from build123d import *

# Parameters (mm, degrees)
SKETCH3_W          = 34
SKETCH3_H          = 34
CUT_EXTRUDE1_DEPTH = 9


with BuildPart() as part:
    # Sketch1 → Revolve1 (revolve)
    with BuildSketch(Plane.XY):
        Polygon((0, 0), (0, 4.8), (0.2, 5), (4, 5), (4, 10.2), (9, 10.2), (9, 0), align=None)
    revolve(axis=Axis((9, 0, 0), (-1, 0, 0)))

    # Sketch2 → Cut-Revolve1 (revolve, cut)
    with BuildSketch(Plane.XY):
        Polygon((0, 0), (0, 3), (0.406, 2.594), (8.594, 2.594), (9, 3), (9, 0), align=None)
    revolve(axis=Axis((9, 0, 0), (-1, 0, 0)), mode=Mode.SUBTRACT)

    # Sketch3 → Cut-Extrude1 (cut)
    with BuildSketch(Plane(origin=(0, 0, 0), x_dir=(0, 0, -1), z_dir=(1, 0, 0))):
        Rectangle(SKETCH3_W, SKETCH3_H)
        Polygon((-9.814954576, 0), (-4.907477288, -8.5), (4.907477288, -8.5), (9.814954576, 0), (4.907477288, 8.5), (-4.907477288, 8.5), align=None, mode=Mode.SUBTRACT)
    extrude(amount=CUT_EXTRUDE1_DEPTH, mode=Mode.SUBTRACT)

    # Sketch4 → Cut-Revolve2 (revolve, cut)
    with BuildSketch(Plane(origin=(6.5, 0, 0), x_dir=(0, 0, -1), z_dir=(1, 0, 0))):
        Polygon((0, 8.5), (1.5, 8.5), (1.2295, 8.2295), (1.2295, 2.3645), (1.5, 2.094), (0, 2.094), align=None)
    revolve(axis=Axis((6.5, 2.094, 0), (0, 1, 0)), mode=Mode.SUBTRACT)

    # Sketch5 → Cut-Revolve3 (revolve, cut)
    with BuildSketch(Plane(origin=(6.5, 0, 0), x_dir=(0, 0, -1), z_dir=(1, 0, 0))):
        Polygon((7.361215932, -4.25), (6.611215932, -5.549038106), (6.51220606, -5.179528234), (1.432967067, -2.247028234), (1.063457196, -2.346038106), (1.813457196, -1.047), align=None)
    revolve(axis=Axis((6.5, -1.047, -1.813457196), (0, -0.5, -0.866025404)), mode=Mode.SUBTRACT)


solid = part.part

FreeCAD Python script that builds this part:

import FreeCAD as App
import Part
import Sketcher
from FreeCAD import Vector
Q = App.Units.Quantity

doc = App.newDocument("Part")
body = doc.addObject("PartDesign::Body", "Body")

# Sketch on XY plane
sketch1 = body.newObject("Sketcher::SketchObject", "Sketch")
sketch1.AttachmentSupport = (doc.getObject("XY_Plane"), [""])
sketch1.MapMode = "FlatFace"
sketch1.addGeometry([
    Part.LineSegment(Vector(0, 4.8, 0), Vector(0, 0, 0)),  # 0
    Part.LineSegment(Vector(0, 0, 0), Vector(9, 0, 0)),  # 1
    Part.LineSegment(Vector(9, 0, 0), Vector(9, 10.2, 0)),  # 2
    Part.LineSegment(Vector(9, 10.2, 0), Vector(4, 10.2, 0)),  # 3
    Part.LineSegment(Vector(4, 10.2, 0), Vector(4, 5, 0)),  # 4
    Part.LineSegment(Vector(4, 5, 0), Vector(0.2, 5, 0)),  # 5
    Part.LineSegment(Vector(0.2, 5, 0), Vector(0, 4.8, 0)),  # 6
], False)
sketch1.addConstraint([
    Sketcher.Constraint("Coincident", 0, 2, 1, 1),
    Sketcher.Constraint("Coincident", 1, 2, 2, 1),
    Sketcher.Constraint("Coincident", 2, 2, 3, 1),
    Sketcher.Constraint("Coincident", 3, 2, 4, 1),
    Sketcher.Constraint("Coincident", 4, 2, 5, 1),
    Sketcher.Constraint("Coincident", 5, 2, 6, 1),
    Sketcher.Constraint("Coincident", 6, 2, 0, 1),
    Sketcher.Constraint("Vertical", 0),
    Sketcher.Constraint("Horizontal", 1),
    Sketcher.Constraint("Vertical", 2),
    Sketcher.Constraint("Horizontal", 3),
    Sketcher.Constraint("Vertical", 4),
    Sketcher.Constraint("Horizontal", 5),
    Sketcher.Constraint("Coincident", 0, 2, -1, 1),
    Sketcher.Constraint("DistanceX", 1, 1, 1, 2, Q("9 mm")),
    Sketcher.Constraint("DistanceX", 3, 2, 3, 1, Q("5 mm")),
    Sketcher.Constraint("Angle", 6, Q("-135 deg")),
    Sketcher.Constraint("DistanceX", 5, 2, 5, 1, Q("3.8 mm")),
    Sketcher.Constraint("DistanceY", 0, 2, 0, 1, Q("4.8 mm")),
    Sketcher.Constraint("DistanceY", 2, 1, 2, 2, Q("10.2 mm")),
])
revolution = body.newObject("PartDesign::Revolution", "Revolution")
revolution.Profile = sketch1
revolution.ReferenceAxis = (sketch1, ["H_Axis"])
revolution.Angle = 360

# Sketch on XY plane
sketch2 = body.newObject("Sketcher::SketchObject", "Sketch001")
sketch2.AttachmentSupport = (doc.getObject("XY_Plane"), [""])
sketch2.MapMode = "FlatFace"
sketch2.addGeometry([
    Part.LineSegment(Vector(0, 3, 0), Vector(0, 0, 0)),  # 0
    Part.LineSegment(Vector(0, 0, 0), Vector(9, 0, 0)),  # 1
    Part.LineSegment(Vector(9, 0, 0), Vector(9, 3, 0)),  # 2
    Part.LineSegment(Vector(9, 3, 0), Vector(8.6, 2.6, 0)),  # 3
    Part.LineSegment(Vector(8.6, 2.6, 0), Vector(0.4, 2.6, 0)),  # 4
    Part.LineSegment(Vector(0.4, 2.6, 0), Vector(0, 3, 0)),  # 5
], False)
sketch2.addConstraint([
    Sketcher.Constraint("Coincident", 0, 2, 1, 1),
    Sketcher.Constraint("Coincident", 1, 2, 2, 1),
    Sketcher.Constraint("Coincident", 2, 2, 3, 1),
    Sketcher.Constraint("Coincident", 3, 2, 4, 1),
    Sketcher.Constraint("Coincident", 4, 2, 5, 1),
    Sketcher.Constraint("Coincident", 5, 2, 0, 1),
    Sketcher.Constraint("Vertical", 0),
    Sketcher.Constraint("Horizontal", 1),
    Sketcher.Constraint("Vertical", 2),
    Sketcher.Constraint("Horizontal", 4),
    Sketcher.Constraint("Coincident", 0, 2, -1, 1),
    Sketcher.Constraint("Perpendicular", 3, 5),
    Sketcher.Constraint("Horizontal", 2, 2, 5, 2),
    Sketcher.Constraint("Equal", 3, 5),
    Sketcher.Constraint("DistanceX", 1, 1, 1, 2, Q("9 mm")),
    Sketcher.Constraint("DistanceY", 0, 2, 0, 1, Q("3 mm")),
    Sketcher.Constraint("DistanceX", 4, 2, 4, 1, Q("8.188 mm")),
])
groove = body.newObject("PartDesign::Groove", "Groove")
groove.Profile = sketch2
groove.ReferenceAxis = (sketch2, ["H_Axis"])
groove.Angle = 360

# Sketch on YZ plane
sketch3 = body.newObject("Sketcher::SketchObject", "Sketch002")
sketch3.AttachmentSupport = (doc.getObject("YZ_Plane"), [""])
sketch3.MapMode = "FlatFace"
sketch3.addGeometry([
    Part.LineSegment(Vector(17, 17, 0), Vector(-17, 17, 0)),  # 0
    Part.LineSegment(Vector(-17, 17, 0), Vector(-17, -17, 0)),  # 1
    Part.LineSegment(Vector(-17, -17, 0), Vector(17, -17, 0)),  # 2
    Part.LineSegment(Vector(17, -17, 0), Vector(17, 17, 0)),  # 3
    Part.LineSegment(Vector(-8, 5, 0), Vector(0, 10, 0)),  # 4
    Part.LineSegment(Vector(0, 10, 0), Vector(8, 5, 0)),  # 5
    Part.LineSegment(Vector(8, 5, 0), Vector(8, -5, 0)),  # 6
    Part.LineSegment(Vector(8, -5, 0), Vector(0, -10, 0)),  # 7
    Part.LineSegment(Vector(0, -10, 0), Vector(-8, -5, 0)),  # 8
    Part.LineSegment(Vector(-8, -5, 0), Vector(-8, 5, 0)),  # 9
], False)
sketch3.addConstraint([
    Sketcher.Constraint("Coincident", 0, 2, 1, 1),
    Sketcher.Constraint("Coincident", 1, 2, 2, 1),
    Sketcher.Constraint("Coincident", 2, 2, 3, 1),
    Sketcher.Constraint("Coincident", 3, 2, 0, 1),
    Sketcher.Constraint("Coincident", 4, 2, 5, 1),
    Sketcher.Constraint("Coincident", 5, 2, 6, 1),
    Sketcher.Constraint("Coincident", 6, 2, 7, 1),
    Sketcher.Constraint("Coincident", 7, 2, 8, 1),
    Sketcher.Constraint("Coincident", 8, 2, 9, 1),
    Sketcher.Constraint("Coincident", 9, 2, 4, 1),
    Sketcher.Constraint("Horizontal", 0),
    Sketcher.Constraint("Vertical", 1),
    Sketcher.Constraint("Horizontal", 2),
    Sketcher.Constraint("Vertical", 3),
    Sketcher.Constraint("Vertical", 6),
    Sketcher.Constraint("Vertical", 9),
    Sketcher.Constraint("Symmetric", 0, 2, 2, 2, -1, 1),
    Sketcher.Constraint("Symmetric", 4, 2, 7, 2, -1, 1),
    Sketcher.Constraint("Symmetric", 5, 2, 8, 2, -1, 1),
    Sketcher.Constraint("PointOnObject", 4, 2, -2),
    Sketcher.Constraint("Parallel", 4, 7),
    Sketcher.Constraint("Horizontal", 6, 2, 8, 2),
    Sketcher.Constraint("Equal", 2, 1),
    Sketcher.Constraint("DistanceX", 0, 2, 0, 1, Q("34 mm")),
    Sketcher.Constraint("Angle", 4, Q("30 deg")),
    Sketcher.Constraint("DistanceX", 8, 2, 6, 2, Q("17 mm")),
    Sketcher.Constraint("DistanceY", 6, 2, 6, 1, Q("9.814955 mm")),
])
pocket1 = body.newObject("PartDesign::Pocket", "Pocket")
pocket1.Profile = sketch3
pocket1.Length = 9
pocket1.Reversed = True

# Sketch on YZ plane
sketch4 = body.newObject("Sketcher::SketchObject", "Sketch003")
sketch4.AttachmentSupport = (doc.getObject("YZ_Plane"), [""])
sketch4.MapMode = "FlatFace"
sketch4.AttachmentOffset = App.Placement(Vector(0, 0, 6.5), App.Rotation())
sketch4.addGeometry([
    Part.LineSegment(Vector(8.5, -1.5, 0), Vector(8.5, 0, 0)),  # 0
    Part.LineSegment(Vector(8.5, 0, 0), Vector(2.09, 0, 0)),  # 1
    Part.LineSegment(Vector(2.09, 0, 0), Vector(2.09, -1.5, 0)),  # 2
    Part.LineSegment(Vector(2.09, -1.5, 0), Vector(2.36, -1.23, 0)),  # 3
    Part.LineSegment(Vector(2.36, -1.23, 0), Vector(8.23, -1.23, 0)),  # 4
    Part.LineSegment(Vector(8.23, -1.23, 0), Vector(8.5, -1.5, 0)),  # 5
], False)
sketch4.addConstraint([
    Sketcher.Constraint("Coincident", 0, 2, 1, 1),
    Sketcher.Constraint("Coincident", 1, 2, 2, 1),
    Sketcher.Constraint("Coincident", 2, 2, 3, 1),
    Sketcher.Constraint("Coincident", 3, 2, 4, 1),
    Sketcher.Constraint("Coincident", 4, 2, 5, 1),
    Sketcher.Constraint("Coincident", 5, 2, 0, 1),
    Sketcher.Constraint("Vertical", 0),
    Sketcher.Constraint("Horizontal", 1),
    Sketcher.Constraint("Vertical", 2),
    Sketcher.Constraint("Horizontal", 4),
    Sketcher.Constraint("PointOnObject", 0, 2, -1),
    Sketcher.Constraint("Perpendicular", 3, 5),
    Sketcher.Constraint("Horizontal", 2, 2, 5, 2),
    Sketcher.Constraint("Equal", 3, 5),
    Sketcher.Constraint("DistanceY", 0, 1, 0, 2, Q("1.5 mm")),
    Sketcher.Constraint("DistanceX", -1, 1, 0, 2, Q("8.5 mm")),
    Sketcher.Constraint("DistanceX", 1, 2, 1, 1, Q("6.406 mm")),
    Sketcher.Constraint("DistanceX", 4, 1, 4, 2, Q("5.865 mm")),
])
groove2 = body.newObject("PartDesign::Groove", "Groove001")
groove2.Profile = sketch4
groove2.ReferenceAxis = (sketch4, ["H_Axis"])
groove2.Angle = 360

# Sketch on YZ plane
sketch5 = body.newObject("Sketcher::SketchObject", "Sketch004")
sketch5.AttachmentSupport = (doc.getObject("YZ_Plane"), [""])
sketch5.MapMode = "FlatFace"
sketch5.AttachmentOffset = App.Placement(Vector(0, 0, 6.5), App.Rotation())
sketch5.addGeometry([
    Part.LineSegment(Vector(-5.55, -6.61, 0), Vector(-4.25, -7.36, 0)),  # 0
    Part.LineSegment(Vector(-4.25, -7.36, 0), Vector(-1.05, -1.81, 0)),  # 1
    Part.LineSegment(Vector(-1.05, -1.81, 0), Vector(-2.35, -1.06, 0)),  # 2
    Part.LineSegment(Vector(-2.35, -1.06, 0), Vector(-2.25, -1.43, 0)),  # 3
    Part.LineSegment(Vector(-2.25, -1.43, 0), Vector(-5.18, -6.51, 0)),  # 4
    Part.LineSegment(Vector(-5.18, -6.51, 0), Vector(-5.55, -6.61, 0)),  # 5
], False)
sketch5.addGeometry(Part.LineSegment(Vector(-1.05, -1.81, 0), Vector(-4.25, -7.36, 0)), True)  # axis
sketch5.addConstraint([
    Sketcher.Constraint("Coincident", 0, 2, 1, 1),
    Sketcher.Constraint("Coincident", 1, 2, 2, 1),
    Sketcher.Constraint("Coincident", 2, 2, 3, 1),
    Sketcher.Constraint("Coincident", 3, 2, 4, 1),
    Sketcher.Constraint("Coincident", 4, 2, 5, 1),
    Sketcher.Constraint("Coincident", 5, 2, 0, 1),
    Sketcher.Constraint("Coincident", 6, 1, 1, 2),
    Sketcher.Constraint("Coincident", 6, 2, 0, 2),
    Sketcher.Constraint("Perpendicular", 0, 1),
    Sketcher.Constraint("Perpendicular", 1, 2),
    Sketcher.Constraint("Perpendicular", 2, 4),
    Sketcher.Constraint("Perpendicular", 3, 5),
    Sketcher.Constraint("Equal", 0, 2),
    Sketcher.Constraint("Equal", 3, 5),
    Sketcher.Constraint("Angle", 0, Q("-30 deg")),
    Sketcher.Constraint("Distance", 0, Q("1.5 mm")),
    Sketcher.Constraint("DistanceX", 0, 2, -1, 1, Q("4.25 mm")),
    Sketcher.Constraint("Distance", 1, Q("6.406 mm")),
    Sketcher.Constraint("Distance", 4, Q("5.865 mm")),
    Sketcher.Constraint("DistanceY", 0, 2, -1, 1, Q("7.361216 mm")),
])
groove3 = body.newObject("PartDesign::Groove", "Groove002")
groove3.Profile = sketch5
groove3.ReferenceAxis = (sketch5, ["Axis0"])
groove3.Angle = 360

doc.recompute()
